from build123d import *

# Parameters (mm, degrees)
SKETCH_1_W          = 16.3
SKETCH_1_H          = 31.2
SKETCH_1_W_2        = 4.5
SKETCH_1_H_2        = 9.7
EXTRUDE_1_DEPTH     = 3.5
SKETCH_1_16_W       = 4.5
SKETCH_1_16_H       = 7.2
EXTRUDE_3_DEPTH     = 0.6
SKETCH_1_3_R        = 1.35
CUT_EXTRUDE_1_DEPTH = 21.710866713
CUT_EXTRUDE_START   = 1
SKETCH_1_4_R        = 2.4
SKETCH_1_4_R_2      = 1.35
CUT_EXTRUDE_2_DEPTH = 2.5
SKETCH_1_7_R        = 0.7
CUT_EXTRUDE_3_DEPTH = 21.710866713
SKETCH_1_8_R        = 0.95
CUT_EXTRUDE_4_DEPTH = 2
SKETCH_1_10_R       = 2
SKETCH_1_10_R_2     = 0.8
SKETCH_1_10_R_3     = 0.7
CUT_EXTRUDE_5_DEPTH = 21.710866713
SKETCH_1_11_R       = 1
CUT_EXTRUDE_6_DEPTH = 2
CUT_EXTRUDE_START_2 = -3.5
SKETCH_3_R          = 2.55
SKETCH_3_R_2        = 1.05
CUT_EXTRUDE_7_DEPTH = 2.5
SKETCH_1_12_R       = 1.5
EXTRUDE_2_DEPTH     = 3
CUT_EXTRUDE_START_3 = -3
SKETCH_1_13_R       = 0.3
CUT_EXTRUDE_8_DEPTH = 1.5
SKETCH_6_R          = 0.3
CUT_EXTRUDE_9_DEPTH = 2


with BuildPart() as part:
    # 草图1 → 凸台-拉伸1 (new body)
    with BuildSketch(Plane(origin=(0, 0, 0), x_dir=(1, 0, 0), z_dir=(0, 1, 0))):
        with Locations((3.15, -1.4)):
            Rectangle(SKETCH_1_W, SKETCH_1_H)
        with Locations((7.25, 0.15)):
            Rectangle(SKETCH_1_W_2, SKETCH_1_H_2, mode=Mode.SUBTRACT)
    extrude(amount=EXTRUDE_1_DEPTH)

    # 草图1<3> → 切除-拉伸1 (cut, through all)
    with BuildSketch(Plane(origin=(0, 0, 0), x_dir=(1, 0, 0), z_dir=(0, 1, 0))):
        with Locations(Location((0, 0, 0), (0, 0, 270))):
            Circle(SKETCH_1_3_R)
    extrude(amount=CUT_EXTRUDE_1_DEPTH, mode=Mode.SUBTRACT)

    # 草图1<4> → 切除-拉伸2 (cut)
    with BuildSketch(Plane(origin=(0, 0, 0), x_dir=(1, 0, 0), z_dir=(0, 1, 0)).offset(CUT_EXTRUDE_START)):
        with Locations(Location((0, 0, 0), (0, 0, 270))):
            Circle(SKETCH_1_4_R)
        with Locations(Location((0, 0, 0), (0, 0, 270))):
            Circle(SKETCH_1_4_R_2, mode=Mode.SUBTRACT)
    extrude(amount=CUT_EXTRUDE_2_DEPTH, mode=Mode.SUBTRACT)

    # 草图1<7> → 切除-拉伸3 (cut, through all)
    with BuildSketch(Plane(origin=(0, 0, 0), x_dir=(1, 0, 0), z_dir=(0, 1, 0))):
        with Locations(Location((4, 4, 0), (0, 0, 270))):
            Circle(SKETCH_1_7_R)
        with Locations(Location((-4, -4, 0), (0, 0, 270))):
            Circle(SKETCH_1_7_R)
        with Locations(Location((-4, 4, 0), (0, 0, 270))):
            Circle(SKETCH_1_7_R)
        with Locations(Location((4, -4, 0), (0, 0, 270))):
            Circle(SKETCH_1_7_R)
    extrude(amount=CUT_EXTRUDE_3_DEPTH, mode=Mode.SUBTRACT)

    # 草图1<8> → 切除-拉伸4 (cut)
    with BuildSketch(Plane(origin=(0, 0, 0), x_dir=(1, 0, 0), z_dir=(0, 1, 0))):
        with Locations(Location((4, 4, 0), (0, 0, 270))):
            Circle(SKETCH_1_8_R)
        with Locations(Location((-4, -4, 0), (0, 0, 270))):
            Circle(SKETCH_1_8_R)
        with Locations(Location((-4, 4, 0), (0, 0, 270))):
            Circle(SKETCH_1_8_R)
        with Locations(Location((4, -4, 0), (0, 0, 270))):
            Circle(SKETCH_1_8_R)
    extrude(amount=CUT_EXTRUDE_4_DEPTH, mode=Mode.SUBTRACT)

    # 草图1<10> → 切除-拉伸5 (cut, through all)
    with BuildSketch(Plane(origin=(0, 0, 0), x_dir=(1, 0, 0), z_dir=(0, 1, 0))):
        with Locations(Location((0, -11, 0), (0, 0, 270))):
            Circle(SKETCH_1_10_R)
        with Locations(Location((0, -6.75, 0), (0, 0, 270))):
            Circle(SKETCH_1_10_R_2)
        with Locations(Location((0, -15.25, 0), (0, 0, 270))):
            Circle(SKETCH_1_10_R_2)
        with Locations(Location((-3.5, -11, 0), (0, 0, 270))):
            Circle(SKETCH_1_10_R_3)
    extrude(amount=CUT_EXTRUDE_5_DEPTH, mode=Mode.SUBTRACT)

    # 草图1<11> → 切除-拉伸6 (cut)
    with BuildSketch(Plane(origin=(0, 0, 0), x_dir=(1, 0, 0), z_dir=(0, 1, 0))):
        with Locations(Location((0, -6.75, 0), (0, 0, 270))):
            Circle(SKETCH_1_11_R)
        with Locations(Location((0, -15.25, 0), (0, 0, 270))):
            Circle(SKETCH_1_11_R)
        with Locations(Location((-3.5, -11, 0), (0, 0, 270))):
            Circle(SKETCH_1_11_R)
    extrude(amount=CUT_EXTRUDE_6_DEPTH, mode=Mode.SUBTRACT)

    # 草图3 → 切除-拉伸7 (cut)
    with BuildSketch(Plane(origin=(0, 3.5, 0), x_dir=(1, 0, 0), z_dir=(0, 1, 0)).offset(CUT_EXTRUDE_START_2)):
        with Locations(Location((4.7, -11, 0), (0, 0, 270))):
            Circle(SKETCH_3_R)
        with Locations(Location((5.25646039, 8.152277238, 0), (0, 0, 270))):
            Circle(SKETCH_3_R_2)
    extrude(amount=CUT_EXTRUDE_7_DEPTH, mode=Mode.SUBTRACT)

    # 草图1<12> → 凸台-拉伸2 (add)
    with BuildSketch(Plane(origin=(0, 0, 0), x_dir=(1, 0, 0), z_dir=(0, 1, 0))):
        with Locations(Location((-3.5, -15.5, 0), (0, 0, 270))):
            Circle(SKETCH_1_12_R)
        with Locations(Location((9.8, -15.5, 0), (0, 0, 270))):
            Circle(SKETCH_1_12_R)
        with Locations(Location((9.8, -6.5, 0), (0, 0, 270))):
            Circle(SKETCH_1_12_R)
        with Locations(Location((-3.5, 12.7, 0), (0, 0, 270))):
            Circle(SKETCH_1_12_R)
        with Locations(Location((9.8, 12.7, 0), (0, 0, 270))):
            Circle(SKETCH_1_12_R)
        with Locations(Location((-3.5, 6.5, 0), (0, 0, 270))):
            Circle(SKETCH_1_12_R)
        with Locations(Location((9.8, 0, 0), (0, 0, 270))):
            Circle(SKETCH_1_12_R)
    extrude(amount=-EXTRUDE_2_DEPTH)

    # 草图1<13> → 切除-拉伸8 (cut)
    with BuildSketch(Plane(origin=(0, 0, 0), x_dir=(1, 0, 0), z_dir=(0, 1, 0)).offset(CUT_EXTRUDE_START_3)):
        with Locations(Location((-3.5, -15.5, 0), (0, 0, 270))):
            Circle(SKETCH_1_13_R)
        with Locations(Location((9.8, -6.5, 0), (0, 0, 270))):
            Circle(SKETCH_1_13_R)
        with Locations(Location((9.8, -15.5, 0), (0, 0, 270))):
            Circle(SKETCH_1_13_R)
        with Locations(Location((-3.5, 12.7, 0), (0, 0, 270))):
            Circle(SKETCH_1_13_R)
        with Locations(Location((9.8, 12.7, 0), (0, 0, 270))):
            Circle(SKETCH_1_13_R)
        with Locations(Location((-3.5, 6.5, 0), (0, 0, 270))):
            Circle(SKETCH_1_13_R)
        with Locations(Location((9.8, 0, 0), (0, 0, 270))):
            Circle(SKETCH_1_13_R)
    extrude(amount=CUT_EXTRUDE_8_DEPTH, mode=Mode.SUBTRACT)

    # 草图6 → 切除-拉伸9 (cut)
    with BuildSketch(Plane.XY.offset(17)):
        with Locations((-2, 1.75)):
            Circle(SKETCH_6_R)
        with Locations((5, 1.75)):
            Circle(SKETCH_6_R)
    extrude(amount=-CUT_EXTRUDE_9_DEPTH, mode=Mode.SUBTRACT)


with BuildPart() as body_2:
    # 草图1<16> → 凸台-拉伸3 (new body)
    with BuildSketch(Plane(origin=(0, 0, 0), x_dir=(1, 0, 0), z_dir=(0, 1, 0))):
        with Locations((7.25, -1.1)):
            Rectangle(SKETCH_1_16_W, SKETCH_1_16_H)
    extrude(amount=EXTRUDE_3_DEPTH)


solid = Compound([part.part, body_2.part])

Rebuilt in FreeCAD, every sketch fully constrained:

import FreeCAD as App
import Part
import Sketcher

V = App.Vector
Q = App.Units.Quantity


def add_polygon(sketch, points):
    """Adds a closed chain of lines whose ends are joined by coincident constraints."""
    first, n = sketch.GeometryCount, len(points)
    for a, b in zip(points, points[1:] + points[:1]):
        sketch.addGeometry(Part.LineSegment(App.Vector(*a, 0), App.Vector(*b, 0)), False)
    for i in range(n):
        sketch.addConstraint(Sketcher.Constraint("Coincident", first + i, 2, first + (i + 1) % n, 1))

doc = App.newDocument("Part")
params = doc.addObject("Spreadsheet::Sheet", "Params")
for row, (alias, value) in enumerate([
    ("sketch1_width", "16.3 mm"),
    ("sketch1_width2", "4.5 mm"),
    ("sketch1_height", "31.2 mm"),
    ("sketch1_height2", "9.7 mm"),
    ("pad1_length", "3.5 mm"),
    ("sketch2_diameter", "2.7 mm"),
    ("sketch3_diameter", "4.8 mm"),
    ("sketch3_diameter2", "2.7 mm"),
    ("pocket2_length", "2.5 mm"),
    ("sketch4_diameter", "1.4 mm"),
    ("sketch5_diameter", "1.9 mm"),
    ("pocket4_length", "2 mm"),
    ("sketch6_diameter", "4 mm"),
    ("sketch6_diameter2", "1.6 mm"),
    ("sketch6_diameter3", "1.4 mm"),
    ("sketch7_diameter", "2 mm"),
    ("pocket6_length", "2 mm"),
    ("sketch8_diameter", "5.1 mm"),
    ("sketch8_diameter2", "2.1 mm"),
    ("pocket7_length", "2.5 mm"),
    ("sketch9_diameter", "3 mm"),
    ("pad2_length", "3 mm"),
    ("sketch10_diameter", "0.6 mm"),
    ("pocket8_length", "1.5 mm"),
    ("sketch11_diameter", "0.6 mm"),
    ("pocket9_length", "2 mm"),
    ("sketch12_width", "4.5 mm"),
    ("sketch12_height", "7.2 mm"),
    ("pad3_length", "0.6 mm"),
], start=1):
    params.set(f"A{row}", alias)
    params.set(f"B{row}", "=" + value)
    params.setAlias(f"B{row}", alias)

body = doc.addObject("PartDesign::Body", "Body")

# Sketch on XZ plane
sketch1 = body.newObject("Sketcher::SketchObject", "Sketch")
sketch1.AttachmentSupport = (doc.getObject("XZ_Plane"), [""])
sketch1.MapMode = "FlatFace"
add_polygon(sketch1, [(-5, -14.2), (-5, 17), (11.3, 17), (11.3, -14.2)])  # lines 0-3
add_polygon(sketch1, [(9.5, 4.7), (5, 4.7), (5, -5), (9.5, -5)])  # lines 4-7
sketch1.addConstraint([
    Sketcher.Constraint("Vertical", 0),
    Sketcher.Constraint("Horizontal", 1),
    Sketcher.Constraint("Vertical", 2),
    Sketcher.Constraint("Horizontal", 3),
    Sketcher.Constraint("Horizontal", 4),
    Sketcher.Constraint("Vertical", 5),
    Sketcher.Constraint("Horizontal", 6),
    Sketcher.Constraint("Vertical", 7),
    Sketcher.Constraint("DistanceX", 1, 1, 1, 2, Q("16.3 mm")),
    Sketcher.Constraint("DistanceX", 4, 2, 4, 1, Q("4.5 mm")),
    Sketcher.Constraint("DistanceY", 0, 1, 0, 2, Q("31.2 mm")),
    Sketcher.Constraint("DistanceY", 5, 2, 5, 1, Q("9.7 mm")),
    Sketcher.Constraint("DistanceX", 0, 2, -1, 1, Q("5 mm")),
    Sketcher.Constraint("DistanceY", -1, 1, 0, 2, Q("17 mm")),
    Sketcher.Constraint("DistanceX", -1, 1, 4, 2, Q("5 mm")),
    Sketcher.Constraint("DistanceY", 5, 2, -1, 1, Q("5 mm")),
])
sketch1.setExpression("Constraints[16]", "Params.sketch1_width")
sketch1.setExpression("Constraints[17]", "Params.sketch1_width2")
sketch1.setExpression("Constraints[18]", "Params.sketch1_height")
sketch1.setExpression("Constraints[19]", "Params.sketch1_height2")
pad1 = body.newObject("PartDesign::Pad", "Pad")
pad1.Profile = sketch1
pad1.setExpression("Length", "Params.pad1_length")
pad1.Reversed = True

# Sketch on XZ plane
sketch2 = body.newObject("Sketcher::SketchObject", "Sketch001")
sketch2.AttachmentSupport = (doc.getObject("XZ_Plane"), [""])
sketch2.MapMode = "FlatFace"
sketch2.addGeometry(Part.Circle(V(0, 0, 0), V(0, 0, 1), 1.4), False)
sketch2.addConstraint([
    Sketcher.Constraint("Coincident", 0, 3, -1, 1),
    Sketcher.Constraint("Diameter", 0, Q("2.7 mm")),
])
sketch2.setExpression("Constraints[1]", "Params.sketch2_diameter")
pocket1 = body.newObject("PartDesign::Pocket", "Pocket")
pocket1.Profile = sketch2
pocket1.Type = "ThroughAll"

# Sketch on XZ plane
sketch3 = body.newObject("Sketcher::SketchObject", "Sketch002")
sketch3.AttachmentSupport = (doc.getObject("XZ_Plane"), [""])
sketch3.MapMode = "FlatFace"
sketch3.AttachmentOffset = App.Placement(V(0, 0, -1), App.Rotation())
sketch3.addGeometry([
    Part.Circle(V(0, 0, 0), V(0, 0, 1), 2.4),
    Part.Circle(V(0, 0, 0), V(0, 0, 1), 1.4),
], False)
sketch3.addConstraint([
    Sketcher.Constraint("Coincident", 0, 3, -1, 1),
    Sketcher.Constraint("Coincident", 1, 3, -1, 1),
    Sketcher.Constraint("Diameter", 0, Q("4.8 mm")),
    Sketcher.Constraint("Diameter", 1, Q("2.7 mm")),
])
sketch3.setExpression("Constraints[2]", "Params.sketch3_diameter")
sketch3.setExpression("Constraints[3]", "Params.sketch3_diameter2")
pocket2 = body.newObject("PartDesign::Pocket", "Pocket001")
pocket2.Profile = sketch3
pocket2.setExpression("Length", "Params.pocket2_length")

# Sketch on XZ plane
sketch4 = body.newObject("Sketcher::SketchObject", "Sketch003")
sketch4.AttachmentSupport = (doc.getObject("XZ_Plane"), [""])
sketch4.MapMode = "FlatFace"
sketch4.addGeometry([
    Part.Circle(V(4, -4, 0), V(0, 0, 1), 0.7),
    Part.Circle(V(-4, 4, 0), V(0, 0, 1), 0.7),
    Part.Circle(V(-4, -4, 0), V(0, 0, 1), 0.7),
    Part.Circle(V(4, 4, 0), V(0, 0, 1), 0.7),
], False)
sketch4.addConstraint([
    Sketcher.Constraint("Equal", 0, 1),
    Sketcher.Constraint("Equal", 1, 2),
    Sketcher.Constraint("Equal", 2, 3),
    Sketcher.Constraint("Symmetric", 0, 3, 1, 3, -1, 1),
    Sketcher.Constraint("Symmetric", 2, 3, 3, 3, -1, 1),
    Sketcher.Constraint("Symmetric", 0, 3, 2, 3, -2),
    Sketcher.Constraint("Diameter", 0, Q("1.4 mm")),
    Sketcher.Constraint("DistanceX", -1, 1, 0, 3, Q("4 mm")),
    Sketcher.Constraint("DistanceY", 0, 3, -1, 1, Q("4 mm")),
])
sketch4.setExpression("Constraints[6]", "Params.sketch4_diameter")
pocket3 = body.newObject("PartDesign::Pocket", "Pocket002")
pocket3.Profile = sketch4
pocket3.Type = "ThroughAll"

# Sketch on XZ plane
sketch5 = body.newObject("Sketcher::SketchObject", "Sketch004")
sketch5.AttachmentSupport = (doc.getObject("XZ_Plane"), [""])
sketch5.MapMode = "FlatFace"
sketch5.addGeometry([
    Part.Circle(V(4, -4, 0), V(0, 0, 1), 0.9),
    Part.Circle(V(-4, 4, 0), V(0, 0, 1), 0.9),
    Part.Circle(V(-4, -4, 0), V(0, 0, 1), 0.9),
    Part.Circle(V(4, 4, 0), V(0, 0, 1), 0.9),
], False)
sketch5.addConstraint([
    Sketcher.Constraint("Equal", 0, 1),
    Sketcher.Constraint("Equal", 1, 2),
    Sketcher.Constraint("Equal", 2, 3),
    Sketcher.Constraint("Symmetric", 0, 3, 1, 3, -1, 1),
    Sketcher.Constraint("Symmetric", 2, 3, 3, 3, -1, 1),
    Sketcher.Constraint("Symmetric", 0, 3, 2, 3, -2),
    Sketcher.Constraint("Diameter", 0, Q("1.9 mm")),
    Sketcher.Constraint("DistanceX", -1, 1, 0, 3, Q("4 mm")),
    Sketcher.Constraint("DistanceY", 0, 3, -1, 1, Q("4 mm")),
])
sketch5.setExpression("Constraints[6]", "Params.sketch5_diameter")
pocket4 = body.newObject("PartDesign::Pocket", "Pocket003")
pocket4.Profile = sketch5
pocket4.setExpression("Length", "Params.pocket4_length")

# Sketch on XZ plane
sketch6 = body.newObject("Sketcher::SketchObject", "Sketch005")
sketch6.AttachmentSupport = (doc.getObject("XZ_Plane"), [""])
sketch6.MapMode = "FlatFace"
sketch6.addGeometry([
    Part.Circle(V(0, 11, 0), V(0, 0, 1), 2),
    Part.Circle(V(0, 6.8, 0), V(0, 0, 1), 0.8),
    Part.Circle(V(0, 15.2, 0), V(0, 0, 1), 0.8),
    Part.Circle(V(-3.5, 11, 0), V(0, 0, 1), 0.7),
], False)
sketch6.addConstraint([
    Sketcher.Constraint("Equal", 1, 2),
    Sketcher.Constraint("PointOnObject", 0, 3, -2),
    Sketcher.Constraint("PointOnObject", 1, 3, -2),
    Sketcher.Constraint("PointOnObject", 2, 3, -2),
    Sketcher.Constraint("Horizontal", 0, 3, 3, 3),
    Sketcher.Constraint("Diameter", 0, Q("4 mm")),
    Sketcher.Constraint("Diameter", 1, Q("1.6 mm")),
    Sketcher.Constraint("Diameter", 3, Q("1.4 mm")),
    Sketcher.Constraint("DistanceY", -1, 1, 0, 3, Q("11 mm")),
    Sketcher.Constraint("DistanceX", 3, 3, -1, 1, Q("3.5 mm")),
    Sketcher.Constraint("DistanceY", 1, 3, 2, 3, Q("8.5 mm")),
    Sketcher.Constraint("DistanceY", -1, 1, 1, 3, Q("6.75 mm")),
])
sketch6.setExpression("Constraints[5]", "Params.sketch6_diameter")
sketch6.setExpression("Constraints[6]", "Params.sketch6_diameter2")
sketch6.setExpression("Constraints[7]", "Params.sketch6_diameter3")
pocket5 = body.newObject("PartDesign::Pocket", "Pocket004")
pocket5.Profile = sketch6
pocket5.Type = "ThroughAll"

# Sketch on XZ plane
sketch7 = body.newObject("Sketcher::SketchObject", "Sketch006")
sketch7.AttachmentSupport = (doc.getObject("XZ_Plane"), [""])
sketch7.MapMode = "FlatFace"
sketch7.addGeometry([
    Part.Circle(V(0, 6.8, 0), V(0, 0, 1), 1),
    Part.Circle(V(0, 15.2, 0), V(0, 0, 1), 1),
    Part.Circle(V(-3.5, 11, 0), V(0, 0, 1), 1),
], False)
sketch7.addConstraint([
    Sketcher.Constraint("Equal", 0, 1),
    Sketcher.Constraint("Equal", 1, 2),
    Sketcher.Constraint("PointOnObject", 0, 3, -2),
    Sketcher.Constraint("PointOnObject", 1, 3, -2),
    Sketcher.Constraint("Diameter", 0, Q("2 mm")),
    Sketcher.Constraint("DistanceY", -1, 1, 2, 3, Q("11 mm")),
    Sketcher.Constraint("DistanceX", 2, 3, -1, 1, Q("3.5 mm")),
    Sketcher.Constraint("DistanceY", 0, 3, 1, 3, Q("8.5 mm")),
    Sketcher.Constraint("DistanceY", -1, 1, 0, 3, Q("6.75 mm")),
])
sketch7.setExpression("Constraints[4]", "Params.sketch7_diameter")
pocket6 = body.newObject("PartDesign::Pocket", "Pocket005")
pocket6.Profile = sketch7
pocket6.setExpression("Length", "Params.pocket6_length")

# Sketch on XZ plane
sketch8 = body.newObject("Sketcher::SketchObject", "Sketch007")
sketch8.AttachmentSupport = (doc.getObject("XZ_Plane"), [""])
sketch8.MapMode = "FlatFace"
sketch8.addGeometry([
    Part.Circle(V(4.7, 11, 0), V(0, 0, 1), 2.5),
    Part.Circle(V(5.3, -8.2, 0), V(0, 0, 1), 1.1),
], False)
sketch8.addConstraint([
    Sketcher.Constraint("Diameter", 0, Q("5.1 mm")),
    Sketcher.Constraint("Diameter", 1, Q("2.1 mm")),
    Sketcher.Constraint("DistanceY", -1, 1, 0, 3, Q("11 mm")),
    Sketcher.Constraint("DistanceX", -1, 1, 0, 3, Q("4.7 mm")),
    Sketcher.Constraint("DistanceX", -1, 1, 1, 3, Q("5.25646 mm")),
    Sketcher.Constraint("DistanceY", 1, 3, -1, 1, Q("8.152277 mm")),
])
sketch8.setExpression("Constraints[0]", "Params.sketch8_diameter")
sketch8.setExpression("Constraints[1]", "Params.sketch8_diameter2")
pocket7 = body.newObject("PartDesign::Pocket", "Pocket006")
pocket7.Profile = sketch8
pocket7.setExpression("Length", "Params.pocket7_length")

# Sketch on XZ plane
sketch9 = body.newObject("Sketcher::SketchObject", "Sketch008")
sketch9.AttachmentSupport = (doc.getObject("XZ_Plane"), [""])
sketch9.MapMode = "FlatFace"
sketch9.addGeometry([
    Part.Circle(V(-3.5, 15.5, 0), V(0, 0, 1), 1.5),  # 0
    Part.Circle(V(9.8, 15.5, 0), V(0, 0, 1), 1.5),  # 1
    Part.Circle(V(9.8, 6.5, 0), V(0, 0, 1), 1.5),  # 2
    Part.Circle(V(-3.5, -12.7, 0), V(0, 0, 1), 1.5),  # 3
    Part.Circle(V(9.8, -12.7, 0), V(0, 0, 1), 1.5),  # 4
    Part.Circle(V(-3.5, -6.5, 0), V(0, 0, 1), 1.5),  # 5
    Part.Circle(V(9.8, 0, 0), V(0, 0, 1), 1.5),  # 6
], False)
sketch9.addConstraint([
    Sketcher.Constraint("Equal", 0, 1),
    Sketcher.Constraint("Equal", 1, 2),
    Sketcher.Constraint("Equal", 2, 3),
    Sketcher.Constraint("Equal", 3, 4),
    Sketcher.Constraint("Equal", 4, 5),
    Sketcher.Constraint("Equal", 5, 6),
    Sketcher.Constraint("PointOnObject", 6, 3, -1),
    Sketcher.Constraint("Horizontal", 0, 3, 1, 3),
    Sketcher.Constraint("Horizontal", 3, 3, 4, 3),
    Sketcher.Constraint("Vertical", 1, 3, 2, 3),
    Sketcher.Constraint("Vertical", 0, 3, 3, 3),
    Sketcher.Constraint("Vertical", 2, 3, 4, 3),
    Sketcher.Constraint("Vertical", 3, 3, 5, 3),
    Sketcher.Constraint("Vertical", 4, 3, 6, 3),
    Sketcher.Constraint("Diameter", 0, Q("3 mm")),
    Sketcher.Constraint("DistanceY", 2, 3, 1, 3, Q("9 mm")),
    Sketcher.Constraint("DistanceY", 5, 3, 2, 3, Q("13 mm")),
    Sketcher.Constraint("DistanceX", 0, 3, -1, 1, Q("3.5 mm")),
    Sketcher.Constraint("DistanceY", -1, 1, 0, 3, Q("15.5 mm")),
    Sketcher.Constraint("DistanceX", -1, 1, 1, 3, Q("9.8 mm")),
    Sketcher.Constraint("DistanceY", 3, 3, -1, 1, Q("12.7 mm")),
])
sketch9.setExpression("Constraints[14]", "Params.sketch9_diameter")
pad2 = body.newObject("PartDesign::Pad", "Pad001")
pad2.Profile = sketch9
pad2.setExpression("Length", "Params.pad2_length")

# Sketch on XZ plane
sketch10 = body.newObject("Sketcher::SketchObject", "Sketch009")
sketch10.AttachmentSupport = (doc.getObject("XZ_Plane"), [""])
sketch10.MapMode = "FlatFace"
sketch10.AttachmentOffset = App.Placement(V(0, 0, 3), App.Rotation())
sketch10.addGeometry([
    Part.Circle(V(-3.5, 15.5, 0), V(0, 0, 1), 0.3),  # 0
    Part.Circle(V(9.8, 6.5, 0), V(0, 0, 1), 0.3),  # 1
    Part.Circle(V(9.8, 15.5, 0), V(0, 0, 1), 0.3),  # 2
    Part.Circle(V(-3.5, -12.7, 0), V(0, 0, 1), 0.3),  # 3
    Part.Circle(V(9.8, -12.7, 0), V(0, 0, 1), 0.3),  # 4
    Part.Circle(V(-3.5, -6.5, 0), V(0, 0, 1), 0.3),  # 5
    Part.Circle(V(9.8, 0, 0), V(0, 0, 1), 0.3),  # 6
], False)
sketch10.addConstraint([
    Sketcher.Constraint("Equal", 0, 1),
    Sketcher.Constraint("Equal", 1, 2),
    Sketcher.Constraint("Equal", 2, 3),
    Sketcher.Constraint("Equal", 3, 4),
    Sketcher.Constraint("Equal", 4, 5),
    Sketcher.Constraint("Equal", 5, 6),
    Sketcher.Constraint("PointOnObject", 6, 3, -1),
    Sketcher.Constraint("Horizontal", 0, 3, 2, 3),
    Sketcher.Constraint("Horizontal", 3, 3, 4, 3),
    Sketcher.Constraint("Vertical", 1, 3, 2, 3),
    Sketcher.Constraint("Vertical", 0, 3, 3, 3),
    Sketcher.Constraint("Vertical", 2, 3, 4, 3),
    Sketcher.Constraint("Vertical", 3, 3, 5, 3),
    Sketcher.Constraint("Vertical", 4, 3, 6, 3),
    Sketcher.Constraint("Diameter", 0, Q("0.6 mm")),
    Sketcher.Constraint("DistanceY", 1, 3, 0, 3, Q("9 mm")),
    Sketcher.Constraint("DistanceY", 5, 3, 1, 3, Q("13 mm")),
    Sketcher.Constraint("DistanceX", 0, 3, -1, 1, Q("3.5 mm")),
    Sketcher.Constraint("DistanceY", -1, 1, 0, 3, Q("15.5 mm")),
    Sketcher.Constraint("DistanceX", -1, 1, 1, 3, Q("9.8 mm")),
    Sketcher.Constraint("DistanceY", 3, 3, -1, 1, Q("12.7 mm")),
])
sketch10.setExpression("Constraints[14]", "Params.sketch10_diameter")
pocket8 = body.newObject("PartDesign::Pocket", "Pocket007")
pocket8.Profile = sketch10
pocket8.setExpression("Length", "Params.pocket8_length")

# Sketch on XY plane
sketch11 = body.newObject("Sketcher::SketchObject", "Sketch010")
sketch11.AttachmentSupport = (doc.getObject("XY_Plane"), [""])
sketch11.MapMode = "FlatFace"
sketch11.AttachmentOffset = App.Placement(V(0, 0, 17), App.Rotation())
sketch11.addGeometry([
    Part.Circle(V(-2, 1.75, 0), V(0, 0, 1), 0.3),
    Part.Circle(V(5, 1.75, 0), V(0, 0, 1), 0.3),
], False)
sketch11.addConstraint([
    Sketcher.Constraint("Equal", 0, 1),
    Sketcher.Constraint("Horizontal", 0, 3, 1, 3),
    Sketcher.Constraint("Diameter", 0, Q("0.6 mm")),
    Sketcher.Constraint("DistanceX", 0, 3, -1, 1, Q("2 mm")),
    Sketcher.Constraint("DistanceX", -1, 1, 1, 3, Q("5 mm")),
    Sketcher.Constraint("DistanceY", -1, 1, 0, 3, Q("1.75 mm")),
])
sketch11.setExpression("Constraints[2]", "Params.sketch11_diameter")
pocket9 = body.newObject("PartDesign::Pocket", "Pocket008")
pocket9.Profile = sketch11
pocket9.setExpression("Length", "Params.pocket9_length")
body2 = doc.addObject("PartDesign::Body", "Body001")

# Sketch on XZ plane
sketch12 = body2.newObject("Sketcher::SketchObject", "Sketch011")
sketch12.AttachmentSupport = (doc.getObject("XZ_Plane001"), [""])
sketch12.MapMode = "FlatFace"
add_polygon(sketch12, [(5, -2.5), (5, 4.7), (9.5, 4.7), (9.5, -2.5)])  # lines 0-3
sketch12.addConstraint([
    Sketcher.Constraint("Vertical", 0),
    Sketcher.Constraint("Horizontal", 1),
    Sketcher.Constraint("Vertical", 2),
    Sketcher.Constraint("Horizontal", 3),
    Sketcher.Constraint("DistanceX", 1, 1, 1, 2, Q("4.5 mm")),
    Sketcher.Constraint("DistanceY", 0, 1, 0, 2, Q("7.2 mm")),
    Sketcher.Constraint("DistanceX", -1, 1, 0, 2, Q("5 mm")),
    Sketcher.Constraint("DistanceY", -1, 1, 0, 2, Q("4.7 mm")),
])
sketch12.setExpression("Constraints[8]", "Params.sketch12_width")
sketch12.setExpression("Constraints[9]", "Params.sketch12_height")
pad3 = body2.newObject("PartDesign::Pad", "Pad002")
pad3.Profile = sketch12
pad3.setExpression("Length", "Params.pad3_length")
pad3.Reversed = True

doc.recompute()
